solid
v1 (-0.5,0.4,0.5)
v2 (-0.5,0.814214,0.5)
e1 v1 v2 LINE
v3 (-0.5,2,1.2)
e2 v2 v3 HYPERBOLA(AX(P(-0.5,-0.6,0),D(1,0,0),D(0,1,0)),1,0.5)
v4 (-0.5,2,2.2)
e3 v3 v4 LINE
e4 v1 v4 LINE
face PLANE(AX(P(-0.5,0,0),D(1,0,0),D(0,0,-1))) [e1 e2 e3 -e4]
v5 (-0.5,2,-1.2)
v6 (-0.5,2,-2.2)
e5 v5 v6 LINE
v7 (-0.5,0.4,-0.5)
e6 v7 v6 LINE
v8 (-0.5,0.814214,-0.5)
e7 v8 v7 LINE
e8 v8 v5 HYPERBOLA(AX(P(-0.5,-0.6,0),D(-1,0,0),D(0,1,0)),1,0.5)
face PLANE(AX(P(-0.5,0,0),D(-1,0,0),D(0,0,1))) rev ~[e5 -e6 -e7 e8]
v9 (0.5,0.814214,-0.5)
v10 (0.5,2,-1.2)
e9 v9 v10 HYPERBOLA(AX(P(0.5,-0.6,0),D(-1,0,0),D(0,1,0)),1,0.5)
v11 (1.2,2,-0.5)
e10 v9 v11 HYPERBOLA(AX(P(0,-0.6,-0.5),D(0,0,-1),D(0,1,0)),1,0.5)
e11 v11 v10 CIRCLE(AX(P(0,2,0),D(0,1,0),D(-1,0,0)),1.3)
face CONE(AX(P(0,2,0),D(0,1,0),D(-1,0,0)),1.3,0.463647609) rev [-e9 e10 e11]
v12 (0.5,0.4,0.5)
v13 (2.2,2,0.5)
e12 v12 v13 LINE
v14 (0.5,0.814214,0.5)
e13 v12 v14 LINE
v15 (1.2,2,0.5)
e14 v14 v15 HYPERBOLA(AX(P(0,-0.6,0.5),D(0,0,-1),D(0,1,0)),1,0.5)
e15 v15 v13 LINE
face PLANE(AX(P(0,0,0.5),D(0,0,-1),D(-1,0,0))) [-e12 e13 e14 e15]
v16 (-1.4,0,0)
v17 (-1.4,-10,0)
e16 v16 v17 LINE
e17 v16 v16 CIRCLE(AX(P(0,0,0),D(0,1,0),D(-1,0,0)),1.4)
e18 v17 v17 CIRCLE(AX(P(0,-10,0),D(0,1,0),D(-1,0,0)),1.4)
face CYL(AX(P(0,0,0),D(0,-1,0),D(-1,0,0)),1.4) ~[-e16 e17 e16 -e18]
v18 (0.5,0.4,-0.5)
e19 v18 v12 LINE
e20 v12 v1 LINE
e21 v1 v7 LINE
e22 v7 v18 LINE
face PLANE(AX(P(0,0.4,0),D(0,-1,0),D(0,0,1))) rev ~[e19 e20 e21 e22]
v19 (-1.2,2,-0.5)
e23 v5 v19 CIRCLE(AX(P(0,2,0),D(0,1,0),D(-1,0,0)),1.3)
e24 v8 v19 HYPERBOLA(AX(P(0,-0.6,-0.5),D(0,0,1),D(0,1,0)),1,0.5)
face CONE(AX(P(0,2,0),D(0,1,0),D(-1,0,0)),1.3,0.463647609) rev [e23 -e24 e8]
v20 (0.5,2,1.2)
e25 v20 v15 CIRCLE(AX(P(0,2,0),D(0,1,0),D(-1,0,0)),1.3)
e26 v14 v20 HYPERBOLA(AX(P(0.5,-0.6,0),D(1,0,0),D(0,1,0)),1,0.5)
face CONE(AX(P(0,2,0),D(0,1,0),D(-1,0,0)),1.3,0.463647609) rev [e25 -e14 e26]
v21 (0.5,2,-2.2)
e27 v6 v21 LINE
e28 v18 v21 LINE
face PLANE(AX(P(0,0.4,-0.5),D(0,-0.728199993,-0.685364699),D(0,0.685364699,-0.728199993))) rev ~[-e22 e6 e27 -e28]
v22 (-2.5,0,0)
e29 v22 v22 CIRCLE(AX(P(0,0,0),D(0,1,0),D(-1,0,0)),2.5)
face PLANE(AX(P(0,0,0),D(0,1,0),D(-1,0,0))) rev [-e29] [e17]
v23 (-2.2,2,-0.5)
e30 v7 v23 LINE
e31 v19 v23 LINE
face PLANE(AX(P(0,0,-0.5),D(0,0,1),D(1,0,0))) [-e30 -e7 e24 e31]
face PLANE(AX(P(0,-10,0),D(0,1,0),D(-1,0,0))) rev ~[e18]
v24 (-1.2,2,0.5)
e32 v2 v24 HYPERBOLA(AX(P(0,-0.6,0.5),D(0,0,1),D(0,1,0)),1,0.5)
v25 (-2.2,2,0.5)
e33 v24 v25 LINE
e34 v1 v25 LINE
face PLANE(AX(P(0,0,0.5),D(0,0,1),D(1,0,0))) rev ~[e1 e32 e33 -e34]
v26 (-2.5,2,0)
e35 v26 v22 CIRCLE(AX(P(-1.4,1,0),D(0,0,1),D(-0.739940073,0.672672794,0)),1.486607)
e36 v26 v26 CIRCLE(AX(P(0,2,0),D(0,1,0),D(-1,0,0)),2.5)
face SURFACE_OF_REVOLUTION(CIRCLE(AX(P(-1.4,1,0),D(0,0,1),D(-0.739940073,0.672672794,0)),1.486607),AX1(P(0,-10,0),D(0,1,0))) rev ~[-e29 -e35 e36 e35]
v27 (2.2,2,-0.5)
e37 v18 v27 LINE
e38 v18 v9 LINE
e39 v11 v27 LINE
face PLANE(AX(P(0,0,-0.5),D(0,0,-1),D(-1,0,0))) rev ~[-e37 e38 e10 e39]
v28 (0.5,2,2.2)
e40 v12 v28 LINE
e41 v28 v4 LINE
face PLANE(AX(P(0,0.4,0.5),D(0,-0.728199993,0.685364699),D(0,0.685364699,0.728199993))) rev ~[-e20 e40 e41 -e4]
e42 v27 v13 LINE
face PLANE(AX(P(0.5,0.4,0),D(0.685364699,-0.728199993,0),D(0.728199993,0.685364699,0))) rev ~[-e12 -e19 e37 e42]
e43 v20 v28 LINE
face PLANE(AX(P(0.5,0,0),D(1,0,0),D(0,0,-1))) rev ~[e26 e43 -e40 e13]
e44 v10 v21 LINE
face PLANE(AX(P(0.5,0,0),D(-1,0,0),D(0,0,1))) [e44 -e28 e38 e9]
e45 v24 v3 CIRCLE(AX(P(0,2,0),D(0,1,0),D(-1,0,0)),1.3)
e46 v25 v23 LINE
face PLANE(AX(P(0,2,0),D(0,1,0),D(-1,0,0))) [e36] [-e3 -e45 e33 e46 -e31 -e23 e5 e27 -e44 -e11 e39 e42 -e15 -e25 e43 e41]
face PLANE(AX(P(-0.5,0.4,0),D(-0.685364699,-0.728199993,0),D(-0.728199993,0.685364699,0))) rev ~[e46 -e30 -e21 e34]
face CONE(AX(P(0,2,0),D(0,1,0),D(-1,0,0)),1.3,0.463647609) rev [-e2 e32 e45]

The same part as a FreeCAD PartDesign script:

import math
import FreeCAD as App
import Part
import Sketcher
from FreeCAD import Vector
Q = App.Units.Quantity


def add_polygon(sketch, points):
    """Adds a closed chain of lines whose ends are joined by coincident constraints."""
    first, n = sketch.GeometryCount, len(points)
    for a, b in zip(points, points[1:] + points[:1]):
        sketch.addGeometry(Part.LineSegment(App.Vector(*a, 0), App.Vector(*b, 0)), False)
    for i in range(n):
        sketch.addConstraint(Sketcher.Constraint("Coincident", first + i, 2, first + (i + 1) % n, 1))

doc = App.newDocument("Part")
body = doc.addObject("PartDesign::Body", "Body")

# Sketch on XY plane
sketch1 = doc.addObject("Sketcher::SketchObject", "Sketch")
body.addObject(sketch1)
sketch1.AttachmentSupport = (doc.XY_Plane, [""])
sketch1.MapMode = "FlatFace"
sketch1.addGeometry([
    Part.LineSegment(Vector(-2.5, 0, 0), Vector(-1.4, 0, 0)),  # 0
    Part.LineSegment(Vector(-1.4, 0, 0), Vector(-1.4, -10, 0)),  # 1
    Part.LineSegment(Vector(-1.4, -10, 0), Vector(0, -10, 0)),  # 2
    Part.LineSegment(Vector(0, -10, 0), Vector(0, 0.4, 0)),  # 3
    Part.LineSegment(Vector(0, 0.4, 0), Vector(-0.5, 0.4, 0)),  # 4
    Part.LineSegment(Vector(-0.5, 0.4, 0), Vector(-1.3, 2, 0)),  # 5
    Part.LineSegment(Vector(-1.3, 2, 0), Vector(-2.5, 2, 0)),  # 6
    Part.ArcOfCircle(Part.Circle(Vector(-1.4, 1, 0), Vector(0, 0, 1), 1.5), math.radians(138), math.radians(222)),  # 7
], False)
sketch1.addConstraint([
    Sketcher.Constraint("Coincident", 0, 2, 1, 1),
    Sketcher.Constraint("Coincident", 1, 2, 2, 1),
    Sketcher.Constraint("Coincident", 2, 2, 3, 1),
    Sketcher.Constraint("Coincident", 3, 2, 4, 1),
    Sketcher.Constraint("Coincident", 4, 2, 5, 1),
    Sketcher.Constraint("Coincident", 5, 2, 6, 1),
    Sketcher.Constraint("Coincident", 6, 2, 7, 1),
    Sketcher.Constraint("Coincident", 7, 2, 0, 1),
    Sketcher.Constraint("Horizontal", 0),
    Sketcher.Constraint("Vertical", 1),
    Sketcher.Constraint("Horizontal", 2),
    Sketcher.Constraint("Vertical", 3),
    Sketcher.Constraint("Horizontal", 4),
    Sketcher.Constraint("Horizontal", 6),
    Sketcher.Constraint("PointOnObject", 0, 2, -1),
    Sketcher.Constraint("PointOnObject", 2, 2, -2),
    Sketcher.Constraint("Vertical", 7, 3, 0, 2),
    Sketcher.Constraint("Vertical", 6, 2, 7, 2),
    Sketcher.Constraint("DistanceY", 1, 2, 1, 1, Q("10 mm")),
    Sketcher.Constraint("DistanceY", -1, 1, 7, 3, Q("1 mm")),
    Sketcher.Constraint("DistanceX", 6, 2, 4, 2, Q("2 mm")),
    Sketcher.Constraint("DistanceY", -1, 1, 3, 2, Q("0.4 mm")),
    Sketcher.Constraint("DistanceX", 0, 1, 0, 2, Q("1.1 mm")),
    Sketcher.Constraint("DistanceX", 2, 1, 2, 2, Q("1.4 mm")),
    Sketcher.Constraint("DistanceX", 6, 2, 6, 1, Q("1.2 mm")),
])
revolution = doc.addObject("PartDesign::Revolution", "Revolution")
body.addObject(revolution)
revolution.Profile = sketch1
revolution.ReferenceAxis = (sketch1, ["V_Axis"])
revolution.Angle = 360

# Sketch on XY plane
sketch2 = doc.addObject("Sketcher::SketchObject", "Sketch001")
body.addObject(sketch2)
sketch2.AttachmentSupport = (doc.XY_Plane, [""])
sketch2.MapMode = "FlatFace"
add_polygon(sketch2, [(-0.5, 0.4), (0, 0.4), (0, 2), (-2.2, 2)])  # lines 0-3
sketch2.addConstraint([
    Sketcher.Constraint("Horizontal", 0),
    Sketcher.Constraint("Vertical", 1),
    Sketcher.Constraint("Horizontal", 2),
    Sketcher.Constraint("PointOnObject", 0, 2, -2),
    Sketcher.Constraint("DistanceX", 2, 2, 2, 1, Q("2.2 mm")),
    Sketcher.Constraint("DistanceX", 0, 1, 0, 2, Q("0.5 mm")),
    Sketcher.Constraint("DistanceY", 1, 1, 1, 2, Q("1.6 mm")),
    Sketcher.Constraint("DistanceY", -1, 1, 1, 2, Q("2 mm")),
])
pocket1 = doc.addObject("PartDesign::Pocket", "Pocket")
body.addObject(pocket1)
pocket1.Profile = sketch2
pocket1.Length = 1
pocket1.Midplane = True
doc.recompute()

polarpattern = doc.addObject("PartDesign::PolarPattern", "PolarPattern")
body.addObject(polarpattern)
polarpattern.Originals = [pocket1]
polarpattern.Axis = (doc.Y_Axis, [""])
polarpattern.Angle = 360
polarpattern.Occurrences = 4
body.Tip = polarpattern

doc.recompute()
